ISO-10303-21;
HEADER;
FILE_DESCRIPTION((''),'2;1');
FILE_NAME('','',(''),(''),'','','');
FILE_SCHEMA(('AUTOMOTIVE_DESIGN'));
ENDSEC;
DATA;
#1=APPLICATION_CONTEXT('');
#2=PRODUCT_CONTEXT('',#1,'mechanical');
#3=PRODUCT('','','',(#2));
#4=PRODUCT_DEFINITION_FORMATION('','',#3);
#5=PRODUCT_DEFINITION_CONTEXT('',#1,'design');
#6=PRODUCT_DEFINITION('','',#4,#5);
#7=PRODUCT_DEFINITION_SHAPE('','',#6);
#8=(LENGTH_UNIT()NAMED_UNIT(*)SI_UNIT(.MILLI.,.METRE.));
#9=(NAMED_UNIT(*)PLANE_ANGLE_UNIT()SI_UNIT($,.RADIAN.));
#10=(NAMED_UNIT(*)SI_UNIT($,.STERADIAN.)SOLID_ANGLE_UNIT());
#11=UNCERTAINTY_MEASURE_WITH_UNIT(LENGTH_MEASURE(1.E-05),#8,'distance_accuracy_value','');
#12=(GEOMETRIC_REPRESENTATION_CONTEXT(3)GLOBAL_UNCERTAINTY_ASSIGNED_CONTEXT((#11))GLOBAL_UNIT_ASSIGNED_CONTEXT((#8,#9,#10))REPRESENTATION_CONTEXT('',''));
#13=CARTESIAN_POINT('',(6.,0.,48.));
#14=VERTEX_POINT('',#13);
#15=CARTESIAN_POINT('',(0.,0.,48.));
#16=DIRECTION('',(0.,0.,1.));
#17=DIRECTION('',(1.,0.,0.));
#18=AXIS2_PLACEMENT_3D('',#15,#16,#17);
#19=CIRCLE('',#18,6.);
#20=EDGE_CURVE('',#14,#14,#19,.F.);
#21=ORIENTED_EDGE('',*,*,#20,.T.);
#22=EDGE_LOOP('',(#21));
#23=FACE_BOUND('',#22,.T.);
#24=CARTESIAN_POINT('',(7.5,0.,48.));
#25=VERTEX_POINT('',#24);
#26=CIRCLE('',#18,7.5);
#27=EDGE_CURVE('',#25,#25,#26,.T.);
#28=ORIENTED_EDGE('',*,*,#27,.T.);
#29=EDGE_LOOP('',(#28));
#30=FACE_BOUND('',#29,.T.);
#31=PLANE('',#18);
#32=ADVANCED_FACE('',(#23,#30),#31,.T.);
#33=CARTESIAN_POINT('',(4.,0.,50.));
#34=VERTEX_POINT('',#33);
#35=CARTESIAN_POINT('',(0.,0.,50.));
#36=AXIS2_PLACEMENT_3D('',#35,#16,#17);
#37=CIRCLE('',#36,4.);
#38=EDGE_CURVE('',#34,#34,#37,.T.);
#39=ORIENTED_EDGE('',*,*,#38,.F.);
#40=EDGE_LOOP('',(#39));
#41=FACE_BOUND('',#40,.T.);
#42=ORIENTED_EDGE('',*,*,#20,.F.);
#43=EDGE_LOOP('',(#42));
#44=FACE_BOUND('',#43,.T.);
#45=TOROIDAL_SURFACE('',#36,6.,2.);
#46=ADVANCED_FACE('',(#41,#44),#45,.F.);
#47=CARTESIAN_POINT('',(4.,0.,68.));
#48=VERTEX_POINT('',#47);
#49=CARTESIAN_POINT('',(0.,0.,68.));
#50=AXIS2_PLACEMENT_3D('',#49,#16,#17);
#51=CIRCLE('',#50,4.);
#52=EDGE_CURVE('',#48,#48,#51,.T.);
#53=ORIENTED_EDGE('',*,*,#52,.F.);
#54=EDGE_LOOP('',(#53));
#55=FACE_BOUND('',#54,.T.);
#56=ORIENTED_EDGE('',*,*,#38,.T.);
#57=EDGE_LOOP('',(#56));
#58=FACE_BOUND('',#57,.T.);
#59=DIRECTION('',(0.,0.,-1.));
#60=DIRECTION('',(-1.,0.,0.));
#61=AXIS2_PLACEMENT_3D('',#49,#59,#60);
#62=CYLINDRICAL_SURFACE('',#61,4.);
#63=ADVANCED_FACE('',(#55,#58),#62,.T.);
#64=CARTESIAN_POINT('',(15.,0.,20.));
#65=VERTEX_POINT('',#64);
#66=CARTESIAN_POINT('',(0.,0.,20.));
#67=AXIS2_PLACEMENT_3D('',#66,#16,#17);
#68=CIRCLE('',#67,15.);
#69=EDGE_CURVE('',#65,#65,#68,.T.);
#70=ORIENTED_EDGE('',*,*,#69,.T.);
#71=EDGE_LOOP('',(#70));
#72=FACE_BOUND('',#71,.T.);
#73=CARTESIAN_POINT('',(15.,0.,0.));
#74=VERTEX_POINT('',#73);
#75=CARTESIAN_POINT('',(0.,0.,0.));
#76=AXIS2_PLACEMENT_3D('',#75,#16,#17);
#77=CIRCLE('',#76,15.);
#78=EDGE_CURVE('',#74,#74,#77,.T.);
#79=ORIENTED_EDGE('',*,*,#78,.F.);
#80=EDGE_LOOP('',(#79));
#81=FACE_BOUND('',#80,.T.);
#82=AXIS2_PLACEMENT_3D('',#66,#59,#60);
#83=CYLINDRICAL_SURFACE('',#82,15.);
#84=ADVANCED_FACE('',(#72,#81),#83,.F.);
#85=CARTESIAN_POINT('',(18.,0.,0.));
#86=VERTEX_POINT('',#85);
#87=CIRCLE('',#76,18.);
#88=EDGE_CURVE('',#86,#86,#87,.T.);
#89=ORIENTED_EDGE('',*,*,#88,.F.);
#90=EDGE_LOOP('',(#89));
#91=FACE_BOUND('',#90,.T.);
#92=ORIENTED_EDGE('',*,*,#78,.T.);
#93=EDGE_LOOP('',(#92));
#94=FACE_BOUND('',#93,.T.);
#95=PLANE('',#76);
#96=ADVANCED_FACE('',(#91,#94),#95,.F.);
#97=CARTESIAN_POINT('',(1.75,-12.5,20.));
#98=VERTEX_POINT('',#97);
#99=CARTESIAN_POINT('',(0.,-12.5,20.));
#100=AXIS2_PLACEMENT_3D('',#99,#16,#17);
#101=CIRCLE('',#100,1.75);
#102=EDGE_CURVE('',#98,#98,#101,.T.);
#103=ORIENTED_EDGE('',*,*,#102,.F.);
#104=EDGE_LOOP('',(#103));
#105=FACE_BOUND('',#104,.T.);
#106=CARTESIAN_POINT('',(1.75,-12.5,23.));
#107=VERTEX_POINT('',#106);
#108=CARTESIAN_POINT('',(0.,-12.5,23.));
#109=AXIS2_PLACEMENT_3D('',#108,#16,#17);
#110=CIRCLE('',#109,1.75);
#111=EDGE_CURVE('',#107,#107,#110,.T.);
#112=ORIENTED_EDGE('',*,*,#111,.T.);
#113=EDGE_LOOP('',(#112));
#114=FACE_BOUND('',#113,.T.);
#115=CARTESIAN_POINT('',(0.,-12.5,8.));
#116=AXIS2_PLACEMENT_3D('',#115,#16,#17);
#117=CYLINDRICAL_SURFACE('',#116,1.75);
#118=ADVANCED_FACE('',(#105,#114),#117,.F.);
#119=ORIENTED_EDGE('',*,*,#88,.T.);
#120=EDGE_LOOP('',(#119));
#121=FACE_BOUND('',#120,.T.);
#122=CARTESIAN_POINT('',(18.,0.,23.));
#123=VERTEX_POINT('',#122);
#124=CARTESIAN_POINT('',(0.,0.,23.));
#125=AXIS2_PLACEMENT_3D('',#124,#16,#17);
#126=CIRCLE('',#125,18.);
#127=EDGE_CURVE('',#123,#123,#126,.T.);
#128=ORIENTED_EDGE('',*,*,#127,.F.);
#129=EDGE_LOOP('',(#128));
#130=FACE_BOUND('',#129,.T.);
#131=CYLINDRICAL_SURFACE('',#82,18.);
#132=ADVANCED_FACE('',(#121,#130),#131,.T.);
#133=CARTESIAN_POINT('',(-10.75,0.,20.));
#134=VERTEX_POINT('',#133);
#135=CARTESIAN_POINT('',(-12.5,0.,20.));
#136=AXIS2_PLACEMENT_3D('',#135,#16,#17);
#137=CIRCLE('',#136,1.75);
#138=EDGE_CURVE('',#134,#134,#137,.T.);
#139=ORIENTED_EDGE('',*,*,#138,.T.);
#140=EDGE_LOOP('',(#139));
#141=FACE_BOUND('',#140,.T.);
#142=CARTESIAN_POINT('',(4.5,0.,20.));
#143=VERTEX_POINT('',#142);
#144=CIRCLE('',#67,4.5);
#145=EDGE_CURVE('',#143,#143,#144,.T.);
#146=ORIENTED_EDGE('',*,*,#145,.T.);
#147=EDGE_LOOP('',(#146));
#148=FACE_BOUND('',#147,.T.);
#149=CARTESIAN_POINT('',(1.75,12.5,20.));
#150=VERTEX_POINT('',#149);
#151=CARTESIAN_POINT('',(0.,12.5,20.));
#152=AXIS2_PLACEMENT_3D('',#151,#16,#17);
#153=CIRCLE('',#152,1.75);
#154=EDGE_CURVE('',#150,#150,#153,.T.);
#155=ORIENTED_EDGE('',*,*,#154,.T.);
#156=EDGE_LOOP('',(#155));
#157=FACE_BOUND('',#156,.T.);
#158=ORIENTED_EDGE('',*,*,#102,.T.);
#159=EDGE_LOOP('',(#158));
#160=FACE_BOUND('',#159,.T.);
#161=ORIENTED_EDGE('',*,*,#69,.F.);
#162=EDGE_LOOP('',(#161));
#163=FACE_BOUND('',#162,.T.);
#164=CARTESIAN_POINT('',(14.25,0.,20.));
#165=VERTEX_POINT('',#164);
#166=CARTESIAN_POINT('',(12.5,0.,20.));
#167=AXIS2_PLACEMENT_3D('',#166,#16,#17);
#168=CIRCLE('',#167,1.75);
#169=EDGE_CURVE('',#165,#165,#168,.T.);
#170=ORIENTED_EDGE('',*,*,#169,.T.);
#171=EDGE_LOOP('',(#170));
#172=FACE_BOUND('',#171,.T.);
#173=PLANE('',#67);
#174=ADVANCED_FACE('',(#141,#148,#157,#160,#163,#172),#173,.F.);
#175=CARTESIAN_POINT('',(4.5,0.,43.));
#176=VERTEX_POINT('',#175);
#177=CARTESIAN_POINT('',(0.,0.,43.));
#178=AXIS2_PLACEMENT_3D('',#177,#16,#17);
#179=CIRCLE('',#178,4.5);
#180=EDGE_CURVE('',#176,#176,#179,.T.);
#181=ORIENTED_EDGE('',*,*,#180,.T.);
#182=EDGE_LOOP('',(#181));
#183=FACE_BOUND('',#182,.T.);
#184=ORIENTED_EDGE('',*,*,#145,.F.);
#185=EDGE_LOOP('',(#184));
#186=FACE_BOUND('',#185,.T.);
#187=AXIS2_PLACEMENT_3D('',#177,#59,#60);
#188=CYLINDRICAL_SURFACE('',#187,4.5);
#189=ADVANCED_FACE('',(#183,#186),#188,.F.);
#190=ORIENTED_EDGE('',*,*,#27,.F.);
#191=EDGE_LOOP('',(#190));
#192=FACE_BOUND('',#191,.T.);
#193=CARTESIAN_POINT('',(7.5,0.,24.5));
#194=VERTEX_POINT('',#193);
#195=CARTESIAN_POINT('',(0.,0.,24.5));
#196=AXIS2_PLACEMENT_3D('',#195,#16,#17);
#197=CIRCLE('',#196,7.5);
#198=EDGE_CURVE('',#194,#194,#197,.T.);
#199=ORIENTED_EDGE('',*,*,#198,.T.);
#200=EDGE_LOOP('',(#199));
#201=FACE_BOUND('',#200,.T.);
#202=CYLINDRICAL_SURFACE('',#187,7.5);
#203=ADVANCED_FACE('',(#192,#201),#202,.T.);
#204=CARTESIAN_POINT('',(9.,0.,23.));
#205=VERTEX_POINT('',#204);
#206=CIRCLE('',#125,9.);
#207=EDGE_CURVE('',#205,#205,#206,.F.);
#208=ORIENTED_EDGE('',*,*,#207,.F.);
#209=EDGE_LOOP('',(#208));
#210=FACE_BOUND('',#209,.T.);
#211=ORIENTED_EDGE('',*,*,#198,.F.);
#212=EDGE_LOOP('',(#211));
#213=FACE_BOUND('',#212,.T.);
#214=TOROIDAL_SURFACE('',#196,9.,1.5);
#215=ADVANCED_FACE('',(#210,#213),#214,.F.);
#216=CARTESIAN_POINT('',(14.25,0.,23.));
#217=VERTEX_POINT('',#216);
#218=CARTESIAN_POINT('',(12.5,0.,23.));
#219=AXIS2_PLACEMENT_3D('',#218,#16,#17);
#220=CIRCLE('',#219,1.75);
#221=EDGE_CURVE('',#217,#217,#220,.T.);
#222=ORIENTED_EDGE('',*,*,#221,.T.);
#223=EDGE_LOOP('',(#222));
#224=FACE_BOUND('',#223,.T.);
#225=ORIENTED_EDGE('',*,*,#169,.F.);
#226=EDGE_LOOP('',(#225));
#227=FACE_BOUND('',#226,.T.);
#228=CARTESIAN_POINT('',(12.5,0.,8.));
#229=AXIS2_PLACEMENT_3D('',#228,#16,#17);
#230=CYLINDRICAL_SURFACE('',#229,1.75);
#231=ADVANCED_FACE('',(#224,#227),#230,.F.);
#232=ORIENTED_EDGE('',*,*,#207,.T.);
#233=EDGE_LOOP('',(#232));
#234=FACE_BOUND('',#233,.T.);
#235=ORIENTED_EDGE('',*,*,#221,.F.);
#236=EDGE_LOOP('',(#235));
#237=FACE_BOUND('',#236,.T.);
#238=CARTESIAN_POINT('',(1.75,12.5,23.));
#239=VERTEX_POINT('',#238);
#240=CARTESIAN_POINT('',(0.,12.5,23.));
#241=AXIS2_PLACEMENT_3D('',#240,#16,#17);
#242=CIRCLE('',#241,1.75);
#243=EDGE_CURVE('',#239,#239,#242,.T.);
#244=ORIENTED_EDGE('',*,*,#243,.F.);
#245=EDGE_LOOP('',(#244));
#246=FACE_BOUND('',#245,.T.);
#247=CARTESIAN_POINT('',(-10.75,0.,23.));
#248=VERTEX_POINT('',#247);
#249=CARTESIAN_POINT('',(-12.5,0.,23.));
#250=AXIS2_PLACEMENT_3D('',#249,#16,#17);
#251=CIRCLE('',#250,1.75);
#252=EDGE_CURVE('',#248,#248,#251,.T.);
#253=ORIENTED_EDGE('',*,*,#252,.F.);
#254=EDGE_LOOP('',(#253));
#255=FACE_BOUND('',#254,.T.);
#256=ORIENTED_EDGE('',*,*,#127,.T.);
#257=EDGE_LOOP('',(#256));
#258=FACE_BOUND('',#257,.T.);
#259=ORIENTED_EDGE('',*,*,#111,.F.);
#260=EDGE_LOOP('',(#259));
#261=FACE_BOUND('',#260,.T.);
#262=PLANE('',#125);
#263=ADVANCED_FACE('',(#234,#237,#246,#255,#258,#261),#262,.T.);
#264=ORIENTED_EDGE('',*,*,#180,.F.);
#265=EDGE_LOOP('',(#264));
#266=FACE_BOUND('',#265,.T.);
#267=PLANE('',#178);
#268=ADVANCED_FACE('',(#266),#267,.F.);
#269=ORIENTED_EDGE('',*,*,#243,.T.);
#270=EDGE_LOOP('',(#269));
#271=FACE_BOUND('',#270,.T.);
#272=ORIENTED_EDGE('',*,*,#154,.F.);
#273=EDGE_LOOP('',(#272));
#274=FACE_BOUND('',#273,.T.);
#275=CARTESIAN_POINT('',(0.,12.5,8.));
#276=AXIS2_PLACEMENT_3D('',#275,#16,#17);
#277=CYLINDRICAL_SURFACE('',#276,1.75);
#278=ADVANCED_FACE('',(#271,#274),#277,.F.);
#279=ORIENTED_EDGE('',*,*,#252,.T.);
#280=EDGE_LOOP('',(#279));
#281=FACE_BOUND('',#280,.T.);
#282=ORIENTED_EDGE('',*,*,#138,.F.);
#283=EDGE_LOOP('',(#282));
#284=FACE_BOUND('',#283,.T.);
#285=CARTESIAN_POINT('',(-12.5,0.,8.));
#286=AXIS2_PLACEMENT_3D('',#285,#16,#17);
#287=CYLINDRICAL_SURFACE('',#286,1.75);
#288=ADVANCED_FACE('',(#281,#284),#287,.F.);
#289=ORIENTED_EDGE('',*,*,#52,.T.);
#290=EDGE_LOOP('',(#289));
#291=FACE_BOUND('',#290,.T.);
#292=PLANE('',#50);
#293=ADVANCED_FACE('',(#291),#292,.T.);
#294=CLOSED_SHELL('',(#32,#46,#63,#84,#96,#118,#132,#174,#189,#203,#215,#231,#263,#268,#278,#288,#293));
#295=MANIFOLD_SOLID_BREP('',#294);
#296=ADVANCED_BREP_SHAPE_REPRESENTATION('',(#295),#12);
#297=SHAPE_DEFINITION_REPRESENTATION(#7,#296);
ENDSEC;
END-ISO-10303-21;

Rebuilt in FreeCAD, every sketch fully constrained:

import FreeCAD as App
import Part
import Sketcher
from FreeCAD import Vector
Q = App.Units.Quantity


def edges_at(feature, points):
    """Names of the edges that pass closest to the given points."""
    edges = feature.Shape.Edges
    near = lambda p: min(range(len(edges)), key=lambda i: edges[i].distToShape(Part.Vertex(*p))[0])
    return sorted({f"Edge{near(p) + 1}" for p in points})

doc = App.newDocument("Part")
body = doc.addObject("PartDesign::Body", "Body")

# Sketch on XY plane
sketch1 = doc.addObject("Sketcher::SketchObject", "Sketch")
body.addObject(sketch1)
sketch1.AttachmentSupport = (doc.XY_Plane, [""])
sketch1.MapMode = "FlatFace"
sketch1.addGeometry(Part.Circle(Vector(0, 0, 0), Vector(0, 0, 1), 18), False)
sketch1.addGeometry(Part.Circle(Vector(0, 0, 0), Vector(0, 0, 1), 15), False)
sketch1.addConstraint(Sketcher.Constraint("Coincident", 0, 3, -1, 1))
sketch1.addConstraint(Sketcher.Constraint("Coincident", 1, 3, -1, 1))
sketch1.addConstraint(Sketcher.Constraint("Diameter", 0, Q("36 mm")))
sketch1.addConstraint(Sketcher.Constraint("Diameter", 1, Q("30 mm")))
pad1 = doc.addObject("PartDesign::Pad", "Pad")
body.addObject(pad1)
pad1.Profile = sketch1
pad1.Length = 20

# Sketch on XY plane
sketch2 = doc.addObject("Sketcher::SketchObject", "Sketch001")
body.addObject(sketch2)
sketch2.AttachmentSupport = (doc.XY_Plane, [""])
sketch2.MapMode = "FlatFace"
sketch2.AttachmentOffset = App.Placement(Vector(0, 0, 20), App.Rotation())
sketch2.addGeometry(Part.Circle(Vector(0, 0, 0), Vector(0, 0, 1), 18), False)
sketch2.addConstraint(Sketcher.Constraint("Coincident", 0, 3, -1, 1))
sketch2.addConstraint(Sketcher.Constraint("Diameter", 0, Q("36 mm")))
pad2 = doc.addObject("PartDesign::Pad", "Pad001")
body.addObject(pad2)
pad2.Profile = sketch2
pad2.Length = 3

# Sketch on XY plane
sketch3 = doc.addObject("Sketcher::SketchObject", "Sketch002")
body.addObject(sketch3)
sketch3.AttachmentSupport = (doc.XY_Plane, [""])
sketch3.MapMode = "FlatFace"
sketch3.AttachmentOffset = App.Placement(Vector(0, 0, 23), App.Rotation())
sketch3.addGeometry(Part.Circle(Vector(0, 0, 0), Vector(0, 0, 1), 7.5), False)
sketch3.addGeometry(Part.Circle(Vector(0, 0, 0), Vector(0, 0, 1), 4.5), False)
sketch3.addConstraint(Sketcher.Constraint("Coincident", 0, 3, -1, 1))
sketch3.addConstraint(Sketcher.Constraint("Coincident", 1, 3, -1, 1))
sketch3.addConstraint(Sketcher.Constraint("Diameter", 0, Q("15 mm")))
sketch3.addConstraint(Sketcher.Constraint("Diameter", 1, Q("9 mm")))
pad3 = doc.addObject("PartDesign::Pad", "Pad002")
body.addObject(pad3)
pad3.Profile = sketch3
pad3.Length = 20

# Sketch on XY plane
sketch4 = doc.addObject("Sketcher::SketchObject", "Sketch003")
body.addObject(sketch4)
sketch4.AttachmentSupport = (doc.XY_Plane, [""])
sketch4.MapMode = "FlatFace"
sketch4.AttachmentOffset = App.Placement(Vector(0, 0, 3), App.Rotation())
sketch4.addGeometry(Part.Circle(Vector(0, 0, 0), Vector(0, 0, 1), 4.5), False)
sketch4.addConstraint(Sketcher.Constraint("Coincident", 0, 3, -1, 1))
sketch4.addConstraint(Sketcher.Constraint("Diameter", 0, Q("9 mm")))
pocket1 = doc.addObject("PartDesign::Pocket", "Pocket")
body.addObject(pocket1)
pocket1.Profile = sketch4
pocket1.Length = 20
pocket1.Reversed = True

# Sketch on XY plane
sketch5 = doc.addObject("Sketcher::SketchObject", "Sketch004")
body.addObject(sketch5)
sketch5.AttachmentSupport = (doc.XY_Plane, [""])
sketch5.MapMode = "FlatFace"
sketch5.AttachmentOffset = App.Placement(Vector(0, 0, 43), App.Rotation())
sketch5.addGeometry(Part.Circle(Vector(0, 0, 0), Vector(0, 0, 1), 7.5), False)
sketch5.addConstraint(Sketcher.Constraint("Coincident", 0, 3, -1, 1))
sketch5.addConstraint(Sketcher.Constraint("Diameter", 0, Q("15 mm")))
pad4 = doc.addObject("PartDesign::Pad", "Pad003")
body.addObject(pad4)
pad4.Profile = sketch5
pad4.Length = 5

# Sketch on XY plane
sketch6 = doc.addObject("Sketcher::SketchObject", "Sketch005")
body.addObject(sketch6)
sketch6.AttachmentSupport = (doc.XY_Plane, [""])
sketch6.MapMode = "FlatFace"
sketch6.AttachmentOffset = App.Placement(Vector(0, 0, 48), App.Rotation())
sketch6.addGeometry(Part.Circle(Vector(0, 0, 0), Vector(0, 0, 1), 4), False)
sketch6.addConstraint(Sketcher.Constraint("Coincident", 0, 3, -1, 1))
sketch6.addConstraint(Sketcher.Constraint("Diameter", 0, Q("8 mm")))
pad5 = doc.addObject("PartDesign::Pad", "Pad004")
body.addObject(pad5)
pad5.Profile = sketch6
pad5.Length = 20

# Sketch on XY plane
sketch7 = doc.addObject("Sketcher::SketchObject", "Sketch006")
body.addObject(sketch7)
sketch7.AttachmentSupport = (doc.XY_Plane, [""])
sketch7.MapMode = "FlatFace"
sketch7.AttachmentOffset = App.Placement(Vector(0, 0, 23), App.Rotation())
sketch7.addGeometry(Part.Circle(Vector(0, 12.5, 0), Vector(0, 0, 1), 1.75), False)
sketch7.addGeometry(Part.Circle(Vector(12.5, 0, 0), Vector(0, 0, 1), 1.75), False)
sketch7.addGeometry(Part.Circle(Vector(0, -12.5, 0), Vector(0, 0, 1), 1.75), False)
sketch7.addGeometry(Part.Circle(Vector(-12.5, 0, 0), Vector(0, 0, 1), 1.75), False)
sketch7.addConstraint(Sketcher.Constraint("Equal", 0, 1))
sketch7.addConstraint(Sketcher.Constraint("Equal", 1, 2))
sketch7.addConstraint(Sketcher.Constraint("Equal", 2, 3))
sketch7.addConstraint(Sketcher.Constraint("Symmetric", 0, 3, 2, 3, -1, 1))
sketch7.addConstraint(Sketcher.Constraint("Symmetric", 1, 3, 3, 3, -1, 1))
sketch7.addConstraint(Sketcher.Constraint("PointOnObject", 0, 3, -2))
sketch7.addConstraint(Sketcher.Constraint("PointOnObject", 1, 3, -1))
sketch7.addConstraint(Sketcher.Constraint("Diameter", 0, Q("3.5 mm")))
sketch7.addConstraint(Sketcher.Constraint("DistanceY", 2, 3, 0, 3, Q("25 mm")))
sketch7.addConstraint(Sketcher.Constraint("DistanceX", 3, 3, 1, 3, Q("25 mm")))
pocket2 = doc.addObject("PartDesign::Pocket", "Pocket001")
body.addObject(pocket2)
pocket2.Profile = sketch7
pocket2.Length = 15
doc.recompute()

fillet = doc.addObject("PartDesign::Fillet", "Fillet")
body.addObject(fillet)
fillet.Base = (pocket2, edges_at(pocket2, [(-4, 0, 48)]))
fillet.Radius = 2
doc.recompute()

fillet2 = doc.addObject("PartDesign::Fillet", "Fillet001")
body.addObject(fillet2)
fillet2.Base = (fillet, edges_at(fillet, [(-7.5, 0, 23)]))
fillet2.Radius = 1.5

doc.recompute()
